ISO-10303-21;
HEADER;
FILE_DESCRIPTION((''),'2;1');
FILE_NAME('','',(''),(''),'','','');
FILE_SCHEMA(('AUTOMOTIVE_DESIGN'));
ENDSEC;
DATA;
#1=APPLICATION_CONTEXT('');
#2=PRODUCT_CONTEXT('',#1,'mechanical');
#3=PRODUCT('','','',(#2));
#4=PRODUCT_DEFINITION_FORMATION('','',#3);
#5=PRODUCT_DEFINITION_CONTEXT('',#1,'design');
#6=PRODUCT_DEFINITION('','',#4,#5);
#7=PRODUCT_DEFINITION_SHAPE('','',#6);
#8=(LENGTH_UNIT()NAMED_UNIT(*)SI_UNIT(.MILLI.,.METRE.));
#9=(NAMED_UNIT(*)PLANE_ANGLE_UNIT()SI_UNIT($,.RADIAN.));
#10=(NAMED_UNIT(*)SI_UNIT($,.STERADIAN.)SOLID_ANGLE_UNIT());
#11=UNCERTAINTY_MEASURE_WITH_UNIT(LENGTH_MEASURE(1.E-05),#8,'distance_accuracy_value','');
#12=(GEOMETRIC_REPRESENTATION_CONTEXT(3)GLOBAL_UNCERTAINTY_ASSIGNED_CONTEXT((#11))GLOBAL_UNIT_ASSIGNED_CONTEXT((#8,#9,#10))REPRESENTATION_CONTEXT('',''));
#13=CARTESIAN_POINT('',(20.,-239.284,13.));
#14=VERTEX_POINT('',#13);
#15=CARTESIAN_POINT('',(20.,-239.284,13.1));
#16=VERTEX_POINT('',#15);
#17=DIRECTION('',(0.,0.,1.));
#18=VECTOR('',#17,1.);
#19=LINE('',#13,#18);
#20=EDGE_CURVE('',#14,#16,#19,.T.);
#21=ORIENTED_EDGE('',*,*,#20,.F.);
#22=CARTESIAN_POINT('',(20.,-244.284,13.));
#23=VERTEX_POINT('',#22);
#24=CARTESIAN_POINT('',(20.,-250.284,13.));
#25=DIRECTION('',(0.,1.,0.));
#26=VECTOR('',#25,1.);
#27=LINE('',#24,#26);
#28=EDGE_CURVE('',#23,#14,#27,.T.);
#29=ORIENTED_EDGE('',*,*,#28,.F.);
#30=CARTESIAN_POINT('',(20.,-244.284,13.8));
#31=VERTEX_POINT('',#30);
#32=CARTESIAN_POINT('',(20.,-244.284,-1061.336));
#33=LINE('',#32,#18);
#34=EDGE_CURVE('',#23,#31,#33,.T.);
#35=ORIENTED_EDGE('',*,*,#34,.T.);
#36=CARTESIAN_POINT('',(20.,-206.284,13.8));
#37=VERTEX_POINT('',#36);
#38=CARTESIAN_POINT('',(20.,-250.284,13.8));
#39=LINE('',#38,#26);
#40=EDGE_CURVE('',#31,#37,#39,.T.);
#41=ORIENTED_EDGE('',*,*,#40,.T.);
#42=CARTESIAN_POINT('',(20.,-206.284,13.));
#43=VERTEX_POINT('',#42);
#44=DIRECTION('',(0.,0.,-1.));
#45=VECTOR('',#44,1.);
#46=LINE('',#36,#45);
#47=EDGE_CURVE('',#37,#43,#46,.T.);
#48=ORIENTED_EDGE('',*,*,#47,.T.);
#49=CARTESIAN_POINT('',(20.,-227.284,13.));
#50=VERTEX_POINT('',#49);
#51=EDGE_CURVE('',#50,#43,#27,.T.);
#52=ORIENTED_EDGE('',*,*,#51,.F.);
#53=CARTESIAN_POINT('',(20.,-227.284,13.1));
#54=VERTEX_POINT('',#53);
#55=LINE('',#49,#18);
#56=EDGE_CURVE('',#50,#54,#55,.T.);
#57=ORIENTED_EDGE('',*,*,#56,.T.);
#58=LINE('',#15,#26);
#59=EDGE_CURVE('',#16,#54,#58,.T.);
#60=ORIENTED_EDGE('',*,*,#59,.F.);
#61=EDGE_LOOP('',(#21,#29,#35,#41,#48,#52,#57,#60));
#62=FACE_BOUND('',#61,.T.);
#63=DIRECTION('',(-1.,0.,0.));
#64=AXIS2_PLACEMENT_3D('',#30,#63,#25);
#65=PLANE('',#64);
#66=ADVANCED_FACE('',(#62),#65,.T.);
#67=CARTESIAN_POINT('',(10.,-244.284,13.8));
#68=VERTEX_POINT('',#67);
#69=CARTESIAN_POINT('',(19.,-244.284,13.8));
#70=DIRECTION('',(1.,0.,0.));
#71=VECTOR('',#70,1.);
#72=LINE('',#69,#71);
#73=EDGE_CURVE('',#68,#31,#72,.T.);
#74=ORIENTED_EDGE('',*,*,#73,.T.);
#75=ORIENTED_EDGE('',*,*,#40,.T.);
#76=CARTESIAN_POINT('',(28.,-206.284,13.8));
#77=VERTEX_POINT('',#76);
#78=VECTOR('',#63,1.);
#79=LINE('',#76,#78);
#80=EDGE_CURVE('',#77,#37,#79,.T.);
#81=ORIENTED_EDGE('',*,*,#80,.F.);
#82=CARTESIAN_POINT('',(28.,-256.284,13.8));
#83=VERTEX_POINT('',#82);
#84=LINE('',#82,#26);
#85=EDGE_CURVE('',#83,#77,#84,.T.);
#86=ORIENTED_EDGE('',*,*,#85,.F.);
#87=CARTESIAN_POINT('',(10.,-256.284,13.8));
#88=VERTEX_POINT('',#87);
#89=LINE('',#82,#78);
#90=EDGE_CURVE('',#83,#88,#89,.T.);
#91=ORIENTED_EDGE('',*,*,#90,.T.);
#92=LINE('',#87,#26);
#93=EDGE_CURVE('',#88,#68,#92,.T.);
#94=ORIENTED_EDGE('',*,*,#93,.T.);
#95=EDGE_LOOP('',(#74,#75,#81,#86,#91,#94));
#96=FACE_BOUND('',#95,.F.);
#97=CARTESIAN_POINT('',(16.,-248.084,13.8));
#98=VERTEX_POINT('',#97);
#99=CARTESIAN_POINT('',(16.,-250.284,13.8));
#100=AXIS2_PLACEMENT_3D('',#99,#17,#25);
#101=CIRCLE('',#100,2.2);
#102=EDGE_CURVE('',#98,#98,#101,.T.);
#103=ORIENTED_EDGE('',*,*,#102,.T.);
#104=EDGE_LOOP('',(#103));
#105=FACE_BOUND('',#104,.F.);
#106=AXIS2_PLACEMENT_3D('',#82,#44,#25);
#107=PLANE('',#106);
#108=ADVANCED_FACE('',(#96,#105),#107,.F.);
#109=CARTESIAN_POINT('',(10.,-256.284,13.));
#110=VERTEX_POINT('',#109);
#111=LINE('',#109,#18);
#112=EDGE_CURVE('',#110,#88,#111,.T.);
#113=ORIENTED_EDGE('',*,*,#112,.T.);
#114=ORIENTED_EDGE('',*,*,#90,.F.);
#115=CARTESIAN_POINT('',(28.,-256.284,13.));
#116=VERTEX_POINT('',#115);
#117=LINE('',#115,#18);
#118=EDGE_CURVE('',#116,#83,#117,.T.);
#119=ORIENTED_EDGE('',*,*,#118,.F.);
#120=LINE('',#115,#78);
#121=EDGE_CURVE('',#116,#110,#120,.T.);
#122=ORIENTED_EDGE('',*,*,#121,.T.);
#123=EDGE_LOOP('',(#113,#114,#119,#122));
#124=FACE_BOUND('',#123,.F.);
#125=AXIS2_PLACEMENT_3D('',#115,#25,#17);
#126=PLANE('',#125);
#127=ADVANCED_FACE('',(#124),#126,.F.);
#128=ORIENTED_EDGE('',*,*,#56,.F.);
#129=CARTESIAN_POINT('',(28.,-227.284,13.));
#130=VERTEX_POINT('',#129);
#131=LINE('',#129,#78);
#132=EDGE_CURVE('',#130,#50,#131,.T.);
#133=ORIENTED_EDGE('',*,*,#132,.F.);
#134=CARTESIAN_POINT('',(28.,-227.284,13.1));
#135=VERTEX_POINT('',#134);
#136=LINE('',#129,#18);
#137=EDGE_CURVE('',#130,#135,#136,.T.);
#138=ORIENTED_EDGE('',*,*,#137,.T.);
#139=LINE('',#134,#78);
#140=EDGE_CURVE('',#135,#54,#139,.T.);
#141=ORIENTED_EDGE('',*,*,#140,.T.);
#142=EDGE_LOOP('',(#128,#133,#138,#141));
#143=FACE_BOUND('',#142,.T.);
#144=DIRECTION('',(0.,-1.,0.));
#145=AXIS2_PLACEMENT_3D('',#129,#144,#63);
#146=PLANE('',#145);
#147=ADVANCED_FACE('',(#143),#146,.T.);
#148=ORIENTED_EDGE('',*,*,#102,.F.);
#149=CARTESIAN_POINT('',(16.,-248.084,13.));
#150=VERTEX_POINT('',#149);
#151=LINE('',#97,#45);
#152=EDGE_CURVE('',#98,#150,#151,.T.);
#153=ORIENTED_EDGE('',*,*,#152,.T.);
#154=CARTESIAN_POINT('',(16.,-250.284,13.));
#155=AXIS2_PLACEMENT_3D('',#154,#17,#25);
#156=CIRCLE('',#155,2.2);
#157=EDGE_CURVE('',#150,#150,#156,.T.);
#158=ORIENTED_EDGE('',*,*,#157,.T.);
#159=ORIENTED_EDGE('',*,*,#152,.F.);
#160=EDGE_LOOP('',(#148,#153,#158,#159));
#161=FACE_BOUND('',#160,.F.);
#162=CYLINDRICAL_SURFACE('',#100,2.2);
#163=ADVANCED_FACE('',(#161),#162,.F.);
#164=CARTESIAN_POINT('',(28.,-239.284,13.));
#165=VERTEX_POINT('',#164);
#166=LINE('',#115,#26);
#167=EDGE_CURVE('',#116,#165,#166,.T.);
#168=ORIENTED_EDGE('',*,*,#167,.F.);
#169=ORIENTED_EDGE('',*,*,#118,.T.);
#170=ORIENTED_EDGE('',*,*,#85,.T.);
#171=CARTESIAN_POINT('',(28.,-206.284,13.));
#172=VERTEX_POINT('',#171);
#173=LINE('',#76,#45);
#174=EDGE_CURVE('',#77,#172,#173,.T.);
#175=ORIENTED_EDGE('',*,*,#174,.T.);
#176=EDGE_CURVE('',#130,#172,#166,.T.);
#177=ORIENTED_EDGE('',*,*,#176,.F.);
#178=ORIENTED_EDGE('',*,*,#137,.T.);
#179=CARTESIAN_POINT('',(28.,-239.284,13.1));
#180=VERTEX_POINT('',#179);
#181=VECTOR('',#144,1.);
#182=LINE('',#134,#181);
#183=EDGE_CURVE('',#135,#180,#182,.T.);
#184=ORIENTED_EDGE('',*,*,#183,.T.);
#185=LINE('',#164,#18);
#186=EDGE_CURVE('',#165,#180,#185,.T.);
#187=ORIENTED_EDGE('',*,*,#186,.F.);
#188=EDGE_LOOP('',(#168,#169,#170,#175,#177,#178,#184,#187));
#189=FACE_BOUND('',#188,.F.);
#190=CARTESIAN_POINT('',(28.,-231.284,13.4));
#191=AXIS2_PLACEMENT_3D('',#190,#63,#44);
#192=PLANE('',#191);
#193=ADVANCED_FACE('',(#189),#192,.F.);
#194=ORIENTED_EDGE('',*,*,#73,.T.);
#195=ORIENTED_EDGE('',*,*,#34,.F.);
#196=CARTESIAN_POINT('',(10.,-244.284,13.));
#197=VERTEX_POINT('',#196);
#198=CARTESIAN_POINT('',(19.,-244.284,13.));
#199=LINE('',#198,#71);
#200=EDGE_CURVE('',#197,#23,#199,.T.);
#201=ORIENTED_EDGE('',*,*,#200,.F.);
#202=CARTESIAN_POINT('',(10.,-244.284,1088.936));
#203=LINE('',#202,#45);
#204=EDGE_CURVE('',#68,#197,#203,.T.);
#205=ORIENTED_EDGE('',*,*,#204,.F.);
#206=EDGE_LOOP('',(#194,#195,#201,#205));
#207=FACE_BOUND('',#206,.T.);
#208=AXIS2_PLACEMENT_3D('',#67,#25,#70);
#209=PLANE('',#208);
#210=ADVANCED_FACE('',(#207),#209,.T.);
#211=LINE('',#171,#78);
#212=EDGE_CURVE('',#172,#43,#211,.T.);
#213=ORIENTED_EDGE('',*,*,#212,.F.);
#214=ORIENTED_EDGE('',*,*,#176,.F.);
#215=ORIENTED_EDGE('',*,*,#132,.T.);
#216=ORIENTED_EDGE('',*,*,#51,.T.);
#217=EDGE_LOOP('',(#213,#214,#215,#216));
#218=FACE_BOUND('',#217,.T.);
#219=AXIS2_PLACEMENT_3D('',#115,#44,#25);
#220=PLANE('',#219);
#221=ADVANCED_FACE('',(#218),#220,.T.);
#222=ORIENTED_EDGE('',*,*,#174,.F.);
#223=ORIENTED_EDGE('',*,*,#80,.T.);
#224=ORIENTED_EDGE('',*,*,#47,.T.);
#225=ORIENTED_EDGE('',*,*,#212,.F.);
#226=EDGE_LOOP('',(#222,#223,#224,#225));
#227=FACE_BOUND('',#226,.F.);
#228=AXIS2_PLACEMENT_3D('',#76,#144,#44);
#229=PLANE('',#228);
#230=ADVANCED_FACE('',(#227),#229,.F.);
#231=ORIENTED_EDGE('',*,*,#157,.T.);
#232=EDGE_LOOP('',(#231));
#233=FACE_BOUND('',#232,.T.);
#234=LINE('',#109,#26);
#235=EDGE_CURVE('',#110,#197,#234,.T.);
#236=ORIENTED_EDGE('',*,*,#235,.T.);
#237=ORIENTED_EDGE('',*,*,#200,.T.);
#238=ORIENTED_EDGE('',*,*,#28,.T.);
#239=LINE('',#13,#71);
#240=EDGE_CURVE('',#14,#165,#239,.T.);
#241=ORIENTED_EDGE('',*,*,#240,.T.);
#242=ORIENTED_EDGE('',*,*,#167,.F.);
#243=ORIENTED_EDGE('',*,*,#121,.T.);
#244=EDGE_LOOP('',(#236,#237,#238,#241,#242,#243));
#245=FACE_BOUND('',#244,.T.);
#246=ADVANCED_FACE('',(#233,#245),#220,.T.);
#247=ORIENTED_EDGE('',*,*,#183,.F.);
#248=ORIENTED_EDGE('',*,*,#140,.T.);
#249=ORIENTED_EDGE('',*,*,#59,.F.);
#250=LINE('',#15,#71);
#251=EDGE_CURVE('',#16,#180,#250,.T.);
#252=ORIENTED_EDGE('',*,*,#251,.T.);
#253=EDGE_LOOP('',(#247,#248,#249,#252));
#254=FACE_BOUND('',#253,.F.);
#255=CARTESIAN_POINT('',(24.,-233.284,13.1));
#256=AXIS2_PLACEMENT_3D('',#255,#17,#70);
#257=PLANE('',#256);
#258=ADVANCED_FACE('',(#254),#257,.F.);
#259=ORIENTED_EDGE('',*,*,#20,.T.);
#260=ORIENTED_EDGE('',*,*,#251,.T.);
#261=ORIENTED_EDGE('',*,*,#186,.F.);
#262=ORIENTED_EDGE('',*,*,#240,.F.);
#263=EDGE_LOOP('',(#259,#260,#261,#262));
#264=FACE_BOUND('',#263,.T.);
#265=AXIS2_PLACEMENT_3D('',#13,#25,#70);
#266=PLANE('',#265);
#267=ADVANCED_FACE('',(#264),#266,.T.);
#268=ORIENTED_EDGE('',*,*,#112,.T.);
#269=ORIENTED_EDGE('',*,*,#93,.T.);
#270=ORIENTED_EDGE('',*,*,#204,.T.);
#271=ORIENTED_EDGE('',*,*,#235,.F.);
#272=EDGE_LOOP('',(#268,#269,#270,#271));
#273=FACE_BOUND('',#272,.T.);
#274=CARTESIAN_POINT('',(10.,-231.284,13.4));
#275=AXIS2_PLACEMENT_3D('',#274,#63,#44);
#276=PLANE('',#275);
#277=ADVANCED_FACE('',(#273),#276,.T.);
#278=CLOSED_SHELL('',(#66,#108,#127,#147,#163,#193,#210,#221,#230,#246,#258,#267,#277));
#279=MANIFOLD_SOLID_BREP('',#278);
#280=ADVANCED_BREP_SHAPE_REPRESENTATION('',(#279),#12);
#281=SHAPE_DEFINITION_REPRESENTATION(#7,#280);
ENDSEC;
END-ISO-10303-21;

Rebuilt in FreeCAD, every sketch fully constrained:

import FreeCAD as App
import Part
import Sketcher

V = App.Vector
Q = App.Units.Quantity

doc = App.newDocument("Part")
body = doc.addObject("PartDesign::Body", "Body")

# Sketch on YZ plane
sketch1 = body.newObject("Sketcher::SketchObject", "Sketch")
sketch1.AttachmentSupport = (doc.getObject("YZ_Plane"), [""])
sketch1.MapMode = "FlatFace"
sketch1.AttachmentOffset = App.Placement(V(0, 0, 28), App.Rotation())
sketch1.addGeometry([
    Part.LineSegment(V(-206.3, 13.8, 0), V(-256.3, 13.8, 0)),
    Part.LineSegment(V(-256.3, 13.8, 0), V(-256.3, 13, 0)),
    Part.LineSegment(V(-256.3, 13, 0), V(-206.3, 13, 0)),
    Part.LineSegment(V(-206.3, 13, 0), V(-206.3, 13.8, 0)),
], False)
sketch1.addConstraint([
    Sketcher.Constraint("Coincident", 0, 2, 1, 1),
    Sketcher.Constraint("Coincident", 1, 2, 2, 1),
    Sketcher.Constraint("Coincident", 2, 2, 3, 1),
    Sketcher.Constraint("Coincident", 3, 2, 0, 1),
    Sketcher.Constraint("Horizontal", 0),
    Sketcher.Constraint("Vertical", 1),
    Sketcher.Constraint("Horizontal", 2),
    Sketcher.Constraint("Vertical", 3),
    Sketcher.Constraint("DistanceX", 0, 2, 0, 1, Q("50 mm")),
    Sketcher.Constraint("DistanceY", 1, 2, 1, 1, Q("0.8 mm")),
    Sketcher.Constraint("DistanceY", -1, 1, 1, 2, Q("13 mm")),
    Sketcher.Constraint("DistanceX", 0, 2, -1, 1, Q("256.284 mm")),
])
pad1 = body.newObject("PartDesign::Pad", "Pad")
pad1.Profile = sketch1
pad1.Length = 18
pad1.Reversed = True

# Sketch on XY plane
sketch2 = body.newObject("Sketcher::SketchObject", "Sketch001")
sketch2.AttachmentSupport = (doc.getObject("XY_Plane"), [""])
sketch2.MapMode = "FlatFace"
sketch2.AttachmentOffset = App.Placement(V(0, 0, 13.8), App.Rotation())
sketch2.addGeometry([
    Part.LineSegment(V(10, -204.3, 0), V(10, -244.3, 0)),  # 0
    Part.LineSegment(V(10, -244.3, 0), V(20, -244.3, 0)),  # 1
    Part.LineSegment(V(20, -244.3, 0), V(20, -204.3, 0)),  # 2
    Part.LineSegment(V(20, -204.3, 0), V(10, -204.3, 0)),  # 3
    Part.Circle(V(16, -250.3, 0), V(0, 0, 1), 2.2),  # 4
], False)
sketch2.addConstraint([
    Sketcher.Constraint("Coincident", 0, 2, 1, 1),
    Sketcher.Constraint("Coincident", 1, 2, 2, 1),
    Sketcher.Constraint("Coincident", 2, 2, 3, 1),
    Sketcher.Constraint("Coincident", 3, 2, 0, 1),
    Sketcher.Constraint("Vertical", 0),
    Sketcher.Constraint("Horizontal", 1),
    Sketcher.Constraint("Vertical", 2),
    Sketcher.Constraint("Horizontal", 3),
    Sketcher.Constraint("Diameter", 4, Q("4.4 mm")),
    Sketcher.Constraint("DistanceX", 1, 1, 1, 2, Q("10 mm")),
    Sketcher.Constraint("DistanceY", 0, 2, 0, 1, Q("40 mm")),
    Sketcher.Constraint("DistanceX", -1, 1, 4, 3, Q("16 mm")),
    Sketcher.Constraint("DistanceX", -1, 1, 0, 2, Q("10 mm")),
    Sketcher.Constraint("DistanceY", 4, 3, 0, 2, Q("6 mm")),
    Sketcher.Constraint("DistanceY", 4, 3, -1, 1, Q("250.284 mm")),
])
pocket1 = body.newObject("PartDesign::Pocket", "Pocket")
pocket1.Profile = sketch2
pocket1.Type = "ThroughAll"
pocket1.Midplane = True

# Sketch on XY plane
sketch3 = body.newObject("Sketcher::SketchObject", "Sketch002")
sketch3.AttachmentSupport = (doc.getObject("XY_Plane"), [""])
sketch3.MapMode = "FlatFace"
sketch3.AttachmentOffset = App.Placement(V(0, 0, 13), App.Rotation())
sketch3.addGeometry([
    Part.LineSegment(V(28, -239, 0), V(20, -239, 0)),
    Part.LineSegment(V(20, -239, 0), V(20, -227, 0)),
    Part.LineSegment(V(20, -227, 0), V(28, -227, 0)),
    Part.LineSegment(V(28, -227, 0), V(28, -239, 0)),
], False)
sketch3.addConstraint([
    Sketcher.Constraint("Coincident", 0, 2, 1, 1),
    Sketcher.Constraint("Coincident", 1, 2, 2, 1),
    Sketcher.Constraint("Coincident", 2, 2, 3, 1),
    Sketcher.Constraint("Coincident", 3, 2, 0, 1),
    Sketcher.Constraint("Horizontal", 0),
    Sketcher.Constraint("Vertical", 1),
    Sketcher.Constraint("Horizontal", 2),
    Sketcher.Constraint("Vertical", 3),
    Sketcher.Constraint("DistanceX", 0, 2, 0, 1, Q("8 mm")),
    Sketcher.Constraint("DistanceY", 1, 1, 1, 2, Q("12 mm")),
    Sketcher.Constraint("DistanceX", -1, 1, 0, 2, Q("20 mm")),
    Sketcher.Constraint("DistanceY", 0, 2, -1, 1, Q("239.284 mm")),
])
pocket2 = body.newObject("PartDesign::Pocket", "Pocket001")
pocket2.Profile = sketch3
pocket2.Length = 0.1
pocket2.Reversed = True

doc.recompute()
